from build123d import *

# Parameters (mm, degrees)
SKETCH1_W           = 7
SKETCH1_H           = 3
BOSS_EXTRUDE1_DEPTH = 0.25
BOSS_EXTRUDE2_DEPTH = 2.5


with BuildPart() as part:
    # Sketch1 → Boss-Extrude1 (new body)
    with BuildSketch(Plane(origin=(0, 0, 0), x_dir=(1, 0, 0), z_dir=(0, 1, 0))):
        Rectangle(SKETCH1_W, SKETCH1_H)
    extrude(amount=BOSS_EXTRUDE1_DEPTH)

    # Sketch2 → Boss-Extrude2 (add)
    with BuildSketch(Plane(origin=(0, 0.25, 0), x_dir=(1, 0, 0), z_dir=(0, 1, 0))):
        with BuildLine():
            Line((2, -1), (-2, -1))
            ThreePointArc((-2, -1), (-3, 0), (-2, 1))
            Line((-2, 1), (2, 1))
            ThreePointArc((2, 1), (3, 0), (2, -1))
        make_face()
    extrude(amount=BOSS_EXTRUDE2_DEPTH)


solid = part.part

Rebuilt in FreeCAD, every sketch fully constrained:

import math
import FreeCAD as App
import Part
import Sketcher
from FreeCAD import Vector


def add_polygon(sketch, points):
    """Adds a closed chain of lines whose ends are joined by coincident constraints."""
    first, n = sketch.GeometryCount, len(points)
    for a, b in zip(points, points[1:] + points[:1]):
        sketch.addGeometry(Part.LineSegment(App.Vector(*a, 0), App.Vector(*b, 0)), False)
    for i in range(n):
        sketch.addConstraint(Sketcher.Constraint("Coincident", first + i, 2, first + (i + 1) % n, 1))

doc = App.newDocument("Part")
body = doc.addObject("PartDesign::Body", "Body")

# Sketch on XZ plane
sketch1 = body.newObject("Sketcher::SketchObject", "Sketch")
sketch1.AttachmentSupport = (doc.getObject("XZ_Plane"), [""])
sketch1.MapMode = "FlatFace"
add_polygon(sketch1, [(-3.5, -1.5), (-3.5, 1.5), (3.5, 1.5), (3.5, -1.5)])  # lines 0-3
sketch1.addConstraint(Sketcher.Constraint("Vertical", 0))
sketch1.addConstraint(Sketcher.Constraint("Horizontal", 1))
sketch1.addConstraint(Sketcher.Constraint("Vertical", 2))
sketch1.addConstraint(Sketcher.Constraint("Horizontal", 3))
sketch1.addConstraint(Sketcher.Constraint("Symmetric", 0, 2, 2, 2, -1, 1))
sketch1.addConstraint(Sketcher.Constraint("DistanceX", 1, 1, 1, 2, 7.0))
sketch1.addConstraint(Sketcher.Constraint("DistanceY", 0, 1, 0, 2, 3.0))
pad1 = body.newObject("PartDesign::Pad", "Pad")
pad1.Profile = sketch1
pad1.Length = 0.25
pad1.Reversed = True

# Sketch on XZ plane
sketch2 = body.newObject("Sketcher::SketchObject", "Sketch001")
sketch2.AttachmentSupport = (doc.getObject("XZ_Plane"), [""])
sketch2.MapMode = "FlatFace"
sketch2.AttachmentOffset = App.Placement(Vector(0, 0, -0.25), App.Rotation())
sketch2.addGeometry(Part.LineSegment(Vector(-2, 1, 0), Vector(2, 1, 0)), False)
sketch2.addGeometry(Part.ArcOfCircle(Part.Circle(Vector(2, 0, 0), Vector(0, 0, 1), 1), math.radians(-90), math.radians(90)), False)
sketch2.addGeometry(Part.LineSegment(Vector(2, -1, 0), Vector(-2, -1, 0)), False)
sketch2.addGeometry(Part.ArcOfCircle(Part.Circle(Vector(-2, 0, 0), Vector(0, 0, 1), 1), math.radians(90), math.radians(270)), False)
sketch2.addConstraint(Sketcher.Constraint("Tangent", 0, 2, 1, 2))
sketch2.addConstraint(Sketcher.Constraint("Tangent", 1, 1, 2, 1))
sketch2.addConstraint(Sketcher.Constraint("Tangent", 2, 2, 3, 2))
sketch2.addConstraint(Sketcher.Constraint("Tangent", 3, 1, 0, 1))
sketch2.addConstraint(Sketcher.Constraint("Horizontal", 0))
sketch2.addConstraint(Sketcher.Constraint("Horizontal", 2))
sketch2.addConstraint(Sketcher.Constraint("Symmetric", 1, 3, 3, 3, -1, 1))
sketch2.addConstraint(Sketcher.Constraint("Radius", 1, 1.0))
sketch2.addConstraint(Sketcher.Constraint("DistanceX", 0, 1, 0, 2, 4.0))
pad2 = body.newObject("PartDesign::Pad", "Pad001")
pad2.Profile = sketch2
pad2.Length = 2.5
pad2.Reversed = True

doc.recompute()
